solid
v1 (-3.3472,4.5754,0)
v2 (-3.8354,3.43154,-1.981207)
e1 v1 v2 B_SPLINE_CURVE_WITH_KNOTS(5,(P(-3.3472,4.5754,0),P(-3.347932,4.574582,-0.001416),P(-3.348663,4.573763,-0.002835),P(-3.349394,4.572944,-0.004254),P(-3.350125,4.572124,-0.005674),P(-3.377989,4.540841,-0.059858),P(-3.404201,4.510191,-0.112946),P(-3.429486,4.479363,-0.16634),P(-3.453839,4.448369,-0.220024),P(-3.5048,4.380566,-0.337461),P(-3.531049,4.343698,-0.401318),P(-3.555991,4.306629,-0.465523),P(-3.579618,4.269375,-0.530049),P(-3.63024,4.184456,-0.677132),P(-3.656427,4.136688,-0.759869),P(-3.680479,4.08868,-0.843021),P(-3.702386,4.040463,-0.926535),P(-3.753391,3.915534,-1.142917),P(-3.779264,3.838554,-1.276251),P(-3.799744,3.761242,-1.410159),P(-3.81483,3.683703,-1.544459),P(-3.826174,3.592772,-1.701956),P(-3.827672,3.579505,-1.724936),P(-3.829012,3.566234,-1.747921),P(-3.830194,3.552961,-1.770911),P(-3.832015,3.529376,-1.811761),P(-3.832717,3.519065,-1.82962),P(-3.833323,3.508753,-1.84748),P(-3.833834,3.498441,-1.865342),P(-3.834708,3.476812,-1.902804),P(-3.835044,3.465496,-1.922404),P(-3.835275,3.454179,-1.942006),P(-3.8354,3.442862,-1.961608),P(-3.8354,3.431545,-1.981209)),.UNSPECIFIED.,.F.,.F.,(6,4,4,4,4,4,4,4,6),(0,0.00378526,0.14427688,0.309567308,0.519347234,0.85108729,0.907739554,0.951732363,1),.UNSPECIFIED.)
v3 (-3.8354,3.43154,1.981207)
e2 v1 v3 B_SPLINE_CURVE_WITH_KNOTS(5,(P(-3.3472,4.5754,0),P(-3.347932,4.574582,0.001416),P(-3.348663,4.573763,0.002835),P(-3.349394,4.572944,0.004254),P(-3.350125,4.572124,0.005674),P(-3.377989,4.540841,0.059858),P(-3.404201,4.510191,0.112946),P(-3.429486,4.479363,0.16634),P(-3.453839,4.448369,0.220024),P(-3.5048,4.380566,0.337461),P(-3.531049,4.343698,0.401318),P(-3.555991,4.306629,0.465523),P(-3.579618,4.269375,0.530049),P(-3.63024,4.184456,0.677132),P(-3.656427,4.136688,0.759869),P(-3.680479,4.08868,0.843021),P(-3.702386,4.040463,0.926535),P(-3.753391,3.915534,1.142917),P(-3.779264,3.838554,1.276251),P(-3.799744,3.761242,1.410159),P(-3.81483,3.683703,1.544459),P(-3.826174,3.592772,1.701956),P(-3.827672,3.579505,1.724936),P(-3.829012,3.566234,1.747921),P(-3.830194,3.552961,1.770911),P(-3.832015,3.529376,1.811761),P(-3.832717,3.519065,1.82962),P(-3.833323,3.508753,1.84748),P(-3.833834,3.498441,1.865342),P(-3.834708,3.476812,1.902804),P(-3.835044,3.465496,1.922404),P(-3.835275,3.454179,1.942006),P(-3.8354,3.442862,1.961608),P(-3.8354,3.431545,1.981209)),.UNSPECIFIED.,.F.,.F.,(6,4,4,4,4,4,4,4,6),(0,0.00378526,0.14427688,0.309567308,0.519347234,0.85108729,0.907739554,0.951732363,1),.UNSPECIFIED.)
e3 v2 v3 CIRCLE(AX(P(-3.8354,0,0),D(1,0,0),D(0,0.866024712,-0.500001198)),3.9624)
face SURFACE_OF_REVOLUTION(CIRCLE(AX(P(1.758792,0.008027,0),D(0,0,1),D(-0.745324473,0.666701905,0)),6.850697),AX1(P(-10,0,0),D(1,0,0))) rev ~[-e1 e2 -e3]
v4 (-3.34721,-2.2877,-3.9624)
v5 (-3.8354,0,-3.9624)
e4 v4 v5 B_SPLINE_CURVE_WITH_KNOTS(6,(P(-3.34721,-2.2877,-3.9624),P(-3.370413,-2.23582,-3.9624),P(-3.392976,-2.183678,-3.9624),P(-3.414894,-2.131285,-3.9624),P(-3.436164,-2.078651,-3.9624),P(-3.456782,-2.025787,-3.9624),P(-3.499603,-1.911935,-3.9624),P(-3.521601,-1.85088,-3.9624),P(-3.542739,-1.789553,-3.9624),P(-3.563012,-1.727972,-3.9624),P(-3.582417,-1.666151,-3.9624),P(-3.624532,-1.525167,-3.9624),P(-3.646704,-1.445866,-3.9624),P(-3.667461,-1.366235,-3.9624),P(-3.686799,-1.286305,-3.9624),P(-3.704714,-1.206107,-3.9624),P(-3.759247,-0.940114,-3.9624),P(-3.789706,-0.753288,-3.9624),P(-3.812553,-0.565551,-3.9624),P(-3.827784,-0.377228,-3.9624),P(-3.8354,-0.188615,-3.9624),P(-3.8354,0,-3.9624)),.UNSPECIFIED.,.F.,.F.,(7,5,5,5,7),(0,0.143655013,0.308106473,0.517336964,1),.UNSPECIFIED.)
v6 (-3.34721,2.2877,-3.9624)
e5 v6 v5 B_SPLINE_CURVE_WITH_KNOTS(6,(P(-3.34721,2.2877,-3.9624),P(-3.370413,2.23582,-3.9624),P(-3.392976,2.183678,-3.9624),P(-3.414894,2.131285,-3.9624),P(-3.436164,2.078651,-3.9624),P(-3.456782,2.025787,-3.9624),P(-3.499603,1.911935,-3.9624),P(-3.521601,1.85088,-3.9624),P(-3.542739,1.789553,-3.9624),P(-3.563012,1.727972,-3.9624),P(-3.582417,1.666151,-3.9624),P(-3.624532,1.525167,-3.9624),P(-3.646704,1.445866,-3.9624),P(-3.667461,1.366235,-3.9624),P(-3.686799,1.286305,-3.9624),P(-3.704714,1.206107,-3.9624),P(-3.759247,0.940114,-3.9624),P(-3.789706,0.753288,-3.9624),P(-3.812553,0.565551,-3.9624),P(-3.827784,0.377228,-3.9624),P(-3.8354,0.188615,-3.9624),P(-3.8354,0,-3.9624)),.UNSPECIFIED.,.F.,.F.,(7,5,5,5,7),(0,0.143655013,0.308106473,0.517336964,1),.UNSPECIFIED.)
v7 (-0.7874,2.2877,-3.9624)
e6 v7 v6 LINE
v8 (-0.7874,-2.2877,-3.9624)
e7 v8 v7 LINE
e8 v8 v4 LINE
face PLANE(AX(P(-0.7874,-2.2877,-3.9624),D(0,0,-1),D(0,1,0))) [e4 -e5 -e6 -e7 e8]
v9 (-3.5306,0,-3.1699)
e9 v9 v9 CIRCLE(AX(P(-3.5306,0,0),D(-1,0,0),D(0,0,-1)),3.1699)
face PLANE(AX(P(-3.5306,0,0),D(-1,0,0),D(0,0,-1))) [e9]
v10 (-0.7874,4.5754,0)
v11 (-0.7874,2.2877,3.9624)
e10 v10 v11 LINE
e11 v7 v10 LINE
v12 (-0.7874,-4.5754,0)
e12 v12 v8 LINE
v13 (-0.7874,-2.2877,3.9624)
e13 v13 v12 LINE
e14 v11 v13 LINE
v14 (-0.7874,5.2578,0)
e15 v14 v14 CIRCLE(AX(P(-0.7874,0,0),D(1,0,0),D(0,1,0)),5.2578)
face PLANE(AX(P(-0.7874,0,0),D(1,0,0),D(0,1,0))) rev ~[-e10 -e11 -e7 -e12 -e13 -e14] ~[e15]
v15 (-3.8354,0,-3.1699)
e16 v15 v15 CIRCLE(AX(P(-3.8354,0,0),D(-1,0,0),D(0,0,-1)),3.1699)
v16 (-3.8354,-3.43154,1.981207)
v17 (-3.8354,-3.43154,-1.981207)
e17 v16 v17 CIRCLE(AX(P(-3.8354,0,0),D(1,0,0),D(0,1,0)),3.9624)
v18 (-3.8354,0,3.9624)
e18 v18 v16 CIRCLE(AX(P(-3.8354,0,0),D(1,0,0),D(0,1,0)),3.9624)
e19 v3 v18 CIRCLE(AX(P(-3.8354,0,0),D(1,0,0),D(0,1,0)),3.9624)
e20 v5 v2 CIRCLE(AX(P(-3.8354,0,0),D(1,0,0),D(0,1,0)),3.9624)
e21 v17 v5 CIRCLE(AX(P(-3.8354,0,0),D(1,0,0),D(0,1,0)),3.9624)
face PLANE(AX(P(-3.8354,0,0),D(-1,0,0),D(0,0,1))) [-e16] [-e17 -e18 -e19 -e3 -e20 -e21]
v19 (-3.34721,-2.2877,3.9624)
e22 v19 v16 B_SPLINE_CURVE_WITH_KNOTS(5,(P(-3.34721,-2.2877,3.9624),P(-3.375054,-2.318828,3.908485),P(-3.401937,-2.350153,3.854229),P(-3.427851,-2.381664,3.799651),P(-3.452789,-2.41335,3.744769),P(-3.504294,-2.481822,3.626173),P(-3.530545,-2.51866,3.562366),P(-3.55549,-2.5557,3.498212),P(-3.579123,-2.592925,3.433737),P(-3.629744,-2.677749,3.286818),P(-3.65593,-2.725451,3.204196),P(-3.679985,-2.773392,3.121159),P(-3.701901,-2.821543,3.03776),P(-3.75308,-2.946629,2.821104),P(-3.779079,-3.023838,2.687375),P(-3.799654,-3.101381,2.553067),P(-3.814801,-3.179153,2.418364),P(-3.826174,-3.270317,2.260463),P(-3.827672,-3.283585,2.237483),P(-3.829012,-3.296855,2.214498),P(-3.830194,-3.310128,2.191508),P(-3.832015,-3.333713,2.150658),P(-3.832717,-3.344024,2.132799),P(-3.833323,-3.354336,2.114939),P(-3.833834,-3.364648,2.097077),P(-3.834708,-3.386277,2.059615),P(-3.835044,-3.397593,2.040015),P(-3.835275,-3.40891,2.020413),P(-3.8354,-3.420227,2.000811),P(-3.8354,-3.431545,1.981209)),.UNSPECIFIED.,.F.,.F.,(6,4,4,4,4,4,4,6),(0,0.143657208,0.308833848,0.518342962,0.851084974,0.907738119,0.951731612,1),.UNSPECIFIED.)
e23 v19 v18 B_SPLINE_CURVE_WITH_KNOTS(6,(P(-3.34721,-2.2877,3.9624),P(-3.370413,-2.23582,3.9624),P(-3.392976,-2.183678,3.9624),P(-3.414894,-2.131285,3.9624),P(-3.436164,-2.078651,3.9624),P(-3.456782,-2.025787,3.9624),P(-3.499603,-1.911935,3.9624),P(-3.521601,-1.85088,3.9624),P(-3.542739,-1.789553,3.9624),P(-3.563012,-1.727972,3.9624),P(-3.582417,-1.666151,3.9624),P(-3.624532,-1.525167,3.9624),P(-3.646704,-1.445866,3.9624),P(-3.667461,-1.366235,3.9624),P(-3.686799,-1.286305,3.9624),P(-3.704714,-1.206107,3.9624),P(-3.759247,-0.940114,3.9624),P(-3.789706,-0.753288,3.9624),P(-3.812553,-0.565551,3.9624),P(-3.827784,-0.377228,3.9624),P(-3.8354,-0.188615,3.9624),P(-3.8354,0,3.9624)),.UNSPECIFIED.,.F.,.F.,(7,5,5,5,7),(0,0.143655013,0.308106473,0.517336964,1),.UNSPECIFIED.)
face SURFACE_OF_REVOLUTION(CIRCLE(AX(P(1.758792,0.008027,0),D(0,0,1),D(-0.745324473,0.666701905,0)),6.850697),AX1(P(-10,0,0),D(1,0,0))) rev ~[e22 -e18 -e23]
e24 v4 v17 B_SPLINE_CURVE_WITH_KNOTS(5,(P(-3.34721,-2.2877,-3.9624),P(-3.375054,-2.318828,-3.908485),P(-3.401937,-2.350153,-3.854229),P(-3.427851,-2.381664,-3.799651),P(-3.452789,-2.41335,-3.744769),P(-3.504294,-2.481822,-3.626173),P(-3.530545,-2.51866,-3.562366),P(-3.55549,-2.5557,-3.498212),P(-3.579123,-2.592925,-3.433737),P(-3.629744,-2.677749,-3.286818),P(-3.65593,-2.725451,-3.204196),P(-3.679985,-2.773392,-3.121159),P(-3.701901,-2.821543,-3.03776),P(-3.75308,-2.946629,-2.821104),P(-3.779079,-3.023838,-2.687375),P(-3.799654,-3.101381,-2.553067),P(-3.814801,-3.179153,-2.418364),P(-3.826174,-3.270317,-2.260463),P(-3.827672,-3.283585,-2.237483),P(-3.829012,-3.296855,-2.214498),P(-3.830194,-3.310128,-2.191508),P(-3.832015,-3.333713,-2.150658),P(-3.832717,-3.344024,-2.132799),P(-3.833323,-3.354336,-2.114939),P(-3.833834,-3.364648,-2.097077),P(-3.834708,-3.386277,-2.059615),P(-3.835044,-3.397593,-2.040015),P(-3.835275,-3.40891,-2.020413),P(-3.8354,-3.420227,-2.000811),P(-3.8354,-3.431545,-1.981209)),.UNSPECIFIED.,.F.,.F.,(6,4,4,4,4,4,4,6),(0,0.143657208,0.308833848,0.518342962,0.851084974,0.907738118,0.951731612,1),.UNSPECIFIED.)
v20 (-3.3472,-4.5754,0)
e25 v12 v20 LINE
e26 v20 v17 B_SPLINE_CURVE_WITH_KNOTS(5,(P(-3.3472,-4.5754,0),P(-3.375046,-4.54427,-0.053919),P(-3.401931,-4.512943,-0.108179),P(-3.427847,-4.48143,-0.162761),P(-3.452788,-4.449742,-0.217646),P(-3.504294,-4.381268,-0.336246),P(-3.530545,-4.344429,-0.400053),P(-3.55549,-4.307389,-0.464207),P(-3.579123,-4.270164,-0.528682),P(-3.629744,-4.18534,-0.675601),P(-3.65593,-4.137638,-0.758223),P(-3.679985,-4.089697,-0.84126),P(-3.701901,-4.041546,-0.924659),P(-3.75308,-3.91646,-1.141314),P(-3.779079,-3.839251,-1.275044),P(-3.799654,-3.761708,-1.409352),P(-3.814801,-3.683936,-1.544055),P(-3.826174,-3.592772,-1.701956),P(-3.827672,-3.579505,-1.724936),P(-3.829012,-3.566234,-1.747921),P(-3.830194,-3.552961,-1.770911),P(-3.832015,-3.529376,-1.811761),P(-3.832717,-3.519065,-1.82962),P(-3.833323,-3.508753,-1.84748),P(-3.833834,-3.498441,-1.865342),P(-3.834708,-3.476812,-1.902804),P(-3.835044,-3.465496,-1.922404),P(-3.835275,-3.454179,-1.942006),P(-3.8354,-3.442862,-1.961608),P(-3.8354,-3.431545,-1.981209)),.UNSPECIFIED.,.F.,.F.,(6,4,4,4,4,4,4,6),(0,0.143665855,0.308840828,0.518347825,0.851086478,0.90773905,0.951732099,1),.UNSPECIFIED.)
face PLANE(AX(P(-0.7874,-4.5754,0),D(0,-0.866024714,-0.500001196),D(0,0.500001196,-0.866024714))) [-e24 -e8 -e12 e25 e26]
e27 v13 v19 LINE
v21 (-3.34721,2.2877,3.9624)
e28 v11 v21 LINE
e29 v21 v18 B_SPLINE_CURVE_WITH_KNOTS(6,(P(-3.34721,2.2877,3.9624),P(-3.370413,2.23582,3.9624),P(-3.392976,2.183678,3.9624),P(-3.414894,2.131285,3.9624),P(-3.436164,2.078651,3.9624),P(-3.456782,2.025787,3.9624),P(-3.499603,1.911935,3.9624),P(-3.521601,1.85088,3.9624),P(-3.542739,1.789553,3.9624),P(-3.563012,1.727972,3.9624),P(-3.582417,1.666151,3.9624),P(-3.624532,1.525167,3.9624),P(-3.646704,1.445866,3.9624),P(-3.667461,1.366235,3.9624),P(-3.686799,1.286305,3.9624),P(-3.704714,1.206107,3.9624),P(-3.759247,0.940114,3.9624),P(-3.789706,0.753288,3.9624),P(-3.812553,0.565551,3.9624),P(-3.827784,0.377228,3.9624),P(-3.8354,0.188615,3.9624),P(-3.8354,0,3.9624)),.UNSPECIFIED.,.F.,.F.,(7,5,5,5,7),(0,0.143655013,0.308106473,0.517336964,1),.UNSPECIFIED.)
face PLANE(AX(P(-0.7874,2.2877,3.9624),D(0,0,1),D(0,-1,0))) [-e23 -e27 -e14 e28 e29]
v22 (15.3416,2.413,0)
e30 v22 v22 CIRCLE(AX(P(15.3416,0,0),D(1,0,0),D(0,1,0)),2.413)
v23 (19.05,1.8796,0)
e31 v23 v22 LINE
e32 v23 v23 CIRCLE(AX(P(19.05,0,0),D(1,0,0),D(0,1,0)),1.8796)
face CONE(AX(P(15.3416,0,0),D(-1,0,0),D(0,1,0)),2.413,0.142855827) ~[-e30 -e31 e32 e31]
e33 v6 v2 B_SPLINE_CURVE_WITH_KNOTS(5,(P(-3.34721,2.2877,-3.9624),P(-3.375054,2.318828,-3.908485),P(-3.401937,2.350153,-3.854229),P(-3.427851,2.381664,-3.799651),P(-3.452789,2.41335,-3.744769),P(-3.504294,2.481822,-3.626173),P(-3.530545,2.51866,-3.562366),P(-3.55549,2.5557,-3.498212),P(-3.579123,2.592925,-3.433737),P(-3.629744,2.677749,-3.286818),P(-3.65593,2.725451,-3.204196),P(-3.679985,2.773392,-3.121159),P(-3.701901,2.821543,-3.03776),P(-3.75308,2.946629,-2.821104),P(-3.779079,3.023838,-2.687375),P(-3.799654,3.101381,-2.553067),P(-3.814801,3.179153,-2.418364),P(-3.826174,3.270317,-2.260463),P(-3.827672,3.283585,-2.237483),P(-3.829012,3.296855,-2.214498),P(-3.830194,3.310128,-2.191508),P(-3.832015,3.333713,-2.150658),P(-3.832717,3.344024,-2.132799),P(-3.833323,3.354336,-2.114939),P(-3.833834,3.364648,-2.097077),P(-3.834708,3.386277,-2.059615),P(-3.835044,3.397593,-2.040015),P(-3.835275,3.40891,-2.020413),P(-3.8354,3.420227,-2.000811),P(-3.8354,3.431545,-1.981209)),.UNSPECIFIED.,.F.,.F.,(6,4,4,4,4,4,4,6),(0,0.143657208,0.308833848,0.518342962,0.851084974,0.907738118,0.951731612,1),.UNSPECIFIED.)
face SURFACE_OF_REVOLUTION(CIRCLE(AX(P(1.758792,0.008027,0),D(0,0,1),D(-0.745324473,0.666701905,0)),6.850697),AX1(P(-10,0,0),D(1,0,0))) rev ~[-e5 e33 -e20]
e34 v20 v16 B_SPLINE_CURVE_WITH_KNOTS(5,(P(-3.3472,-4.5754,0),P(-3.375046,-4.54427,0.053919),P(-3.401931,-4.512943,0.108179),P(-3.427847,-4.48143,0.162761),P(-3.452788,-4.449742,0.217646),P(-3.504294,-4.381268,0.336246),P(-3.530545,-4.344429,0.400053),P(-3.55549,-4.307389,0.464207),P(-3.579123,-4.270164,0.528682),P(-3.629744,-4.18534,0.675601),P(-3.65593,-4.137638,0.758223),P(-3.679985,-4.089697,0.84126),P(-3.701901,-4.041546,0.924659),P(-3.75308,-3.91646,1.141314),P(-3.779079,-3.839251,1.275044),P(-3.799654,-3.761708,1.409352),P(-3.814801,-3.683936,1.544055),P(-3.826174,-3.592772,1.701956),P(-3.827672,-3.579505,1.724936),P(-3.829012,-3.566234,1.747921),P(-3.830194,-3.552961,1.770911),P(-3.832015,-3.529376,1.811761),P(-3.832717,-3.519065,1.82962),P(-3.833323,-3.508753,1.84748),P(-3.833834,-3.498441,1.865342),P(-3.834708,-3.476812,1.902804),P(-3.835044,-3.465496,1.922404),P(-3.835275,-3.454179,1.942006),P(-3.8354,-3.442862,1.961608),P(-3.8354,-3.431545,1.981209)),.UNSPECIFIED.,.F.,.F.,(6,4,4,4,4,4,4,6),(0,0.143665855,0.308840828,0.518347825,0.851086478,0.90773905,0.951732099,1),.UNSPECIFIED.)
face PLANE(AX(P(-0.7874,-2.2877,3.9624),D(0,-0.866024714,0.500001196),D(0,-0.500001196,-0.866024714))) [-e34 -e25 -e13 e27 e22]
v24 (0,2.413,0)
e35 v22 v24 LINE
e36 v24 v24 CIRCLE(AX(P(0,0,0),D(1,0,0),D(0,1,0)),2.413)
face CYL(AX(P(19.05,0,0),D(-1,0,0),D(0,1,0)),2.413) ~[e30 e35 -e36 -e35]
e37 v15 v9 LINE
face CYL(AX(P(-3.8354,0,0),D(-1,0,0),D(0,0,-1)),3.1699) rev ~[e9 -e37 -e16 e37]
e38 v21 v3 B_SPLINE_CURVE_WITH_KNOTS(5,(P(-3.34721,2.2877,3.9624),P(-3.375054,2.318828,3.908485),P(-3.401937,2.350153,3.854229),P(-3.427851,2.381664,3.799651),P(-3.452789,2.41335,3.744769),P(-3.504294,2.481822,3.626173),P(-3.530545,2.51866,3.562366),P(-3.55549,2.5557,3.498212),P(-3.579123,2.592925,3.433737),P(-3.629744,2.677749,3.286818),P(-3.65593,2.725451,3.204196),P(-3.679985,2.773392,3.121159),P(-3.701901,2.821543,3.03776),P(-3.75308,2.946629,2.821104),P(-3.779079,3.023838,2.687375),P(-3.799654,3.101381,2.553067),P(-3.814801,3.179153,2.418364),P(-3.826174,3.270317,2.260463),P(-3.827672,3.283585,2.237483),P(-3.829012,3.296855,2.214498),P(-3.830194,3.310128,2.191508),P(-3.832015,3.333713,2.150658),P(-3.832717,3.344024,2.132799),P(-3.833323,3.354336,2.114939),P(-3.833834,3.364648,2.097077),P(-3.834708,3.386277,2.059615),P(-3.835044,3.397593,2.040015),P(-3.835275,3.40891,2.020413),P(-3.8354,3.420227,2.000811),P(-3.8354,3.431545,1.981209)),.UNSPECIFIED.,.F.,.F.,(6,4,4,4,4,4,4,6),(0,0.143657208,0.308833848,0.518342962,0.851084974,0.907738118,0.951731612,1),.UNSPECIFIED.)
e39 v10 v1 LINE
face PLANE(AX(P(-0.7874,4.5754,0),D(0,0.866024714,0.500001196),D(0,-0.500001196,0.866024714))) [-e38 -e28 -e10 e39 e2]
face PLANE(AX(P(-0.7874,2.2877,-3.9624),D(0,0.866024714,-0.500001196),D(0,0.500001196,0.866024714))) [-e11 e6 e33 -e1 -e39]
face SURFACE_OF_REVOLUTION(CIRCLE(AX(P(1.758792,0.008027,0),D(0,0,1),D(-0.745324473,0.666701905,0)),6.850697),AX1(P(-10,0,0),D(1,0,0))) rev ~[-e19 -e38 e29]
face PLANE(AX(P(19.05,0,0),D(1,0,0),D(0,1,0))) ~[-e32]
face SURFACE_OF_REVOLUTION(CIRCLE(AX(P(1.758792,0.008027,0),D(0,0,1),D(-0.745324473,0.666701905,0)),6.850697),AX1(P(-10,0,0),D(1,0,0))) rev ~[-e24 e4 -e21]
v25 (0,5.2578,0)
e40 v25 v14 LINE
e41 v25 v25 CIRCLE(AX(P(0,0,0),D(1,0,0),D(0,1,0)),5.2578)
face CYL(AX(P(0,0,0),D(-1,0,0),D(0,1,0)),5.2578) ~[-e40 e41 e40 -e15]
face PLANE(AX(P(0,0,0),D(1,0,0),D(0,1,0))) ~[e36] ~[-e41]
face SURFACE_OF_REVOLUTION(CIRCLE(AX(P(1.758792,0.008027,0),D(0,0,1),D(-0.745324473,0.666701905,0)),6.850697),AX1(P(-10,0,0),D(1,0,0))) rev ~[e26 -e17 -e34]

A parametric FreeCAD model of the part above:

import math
import FreeCAD as App
import Part
import Sketcher
Q = App.Units.Quantity


def edges_at(feature, points):
    """Names of the edges that pass closest to the given points."""
    edges = feature.Shape.Edges
    near = lambda p: min(range(len(edges)), key=lambda i: edges[i].distToShape(Part.Vertex(*p))[0])
    return sorted({f"Edge{near(p) + 1}" for p in points})


def add_polygon(sketch, points):
    """Adds a closed chain of lines whose ends are joined by coincident constraints."""
    first, n = sketch.GeometryCount, len(points)
    for a, b in zip(points, points[1:] + points[:1]):
        sketch.addGeometry(Part.LineSegment(App.Vector(*a, 0), App.Vector(*b, 0)), False)
    for i in range(n):
        sketch.addConstraint(Sketcher.Constraint("Coincident", first + i, 2, first + (i + 1) % n, 1))

doc = App.newDocument("Part")
params = doc.addObject("Spreadsheet::Sheet", "Params")
for row, (alias, value) in enumerate([
    ("sketch1_width", "0.75 in"),
    ("sketch1_width2", "0.031 in"),
    ("sketch1_height", "0.207 in"),
    ("sketch1_height2", "0.095 in"),
    ("revolution_angle", "360 deg"),
    ("pad1_length", "0.12 in"),
    ("pocket1_length", "0.012 in"),
    ("groove_angle", "360 deg"),
    ("chamfer_size", "0.021 in"),
    ("chamfer_size2", "0.146 in"),
], start=1):
    params.set(f"A{row}", alias)
    params.set(f"B{row}", "=" + value)
    params.setAlias(f"B{row}", alias)

body = doc.addObject("PartDesign::Body", "Body")

# Sketch on XY plane
sketch1 = body.newObject("Sketcher::SketchObject", "Sketch")
sketch1.AttachmentSupport = (doc.getObject("XY_Plane"), [""])
sketch1.MapMode = "FlatFace"
add_polygon(sketch1, [(0, 5.3), (-0.8, 5.3), (-0.8, 0), (19.1, 0), (19.1, 2.4), (0, 2.4)])  # lines 0-5
sketch1.addConstraint([
    Sketcher.Constraint("Horizontal", 0),
    Sketcher.Constraint("Vertical", 1),
    Sketcher.Constraint("Horizontal", 2),
    Sketcher.Constraint("Vertical", 3),
    Sketcher.Constraint("Horizontal", 4),
    Sketcher.Constraint("Vertical", 5),
    Sketcher.Constraint("PointOnObject", 1, 2, -1),
    Sketcher.Constraint("PointOnObject", 4, 2, -2),
    Sketcher.Constraint("DistanceX", 4, 2, 4, 1, Q("0.75 in")),
    Sketcher.Constraint("DistanceX", 0, 2, 0, 1, Q("0.031 in")),
    Sketcher.Constraint("DistanceY", 1, 2, 1, 1, Q("0.207 in")),
    Sketcher.Constraint("DistanceY", 3, 1, 3, 2, Q("0.095 in")),
])
sketch1.setExpression("Constraints[14]", "Params.sketch1_width")
sketch1.setExpression("Constraints[15]", "Params.sketch1_width2")
sketch1.setExpression("Constraints[16]", "Params.sketch1_height")
sketch1.setExpression("Constraints[17]", "Params.sketch1_height2")
revolution = body.newObject("PartDesign::Revolution", "Revolution")
revolution.Profile = sketch1
revolution.ReferenceAxis = (sketch1, ["H_Axis"])
revolution.setExpression("Angle", "Params.revolution_angle")

# Sketch on YZ plane
sketch2 = body.newObject("Sketcher::SketchObject", "Sketch001")
sketch2.AttachmentSupport = (doc.getObject("YZ_Plane"), [""])
sketch2.MapMode = "FlatFace"
sketch2.AttachmentOffset = App.Placement(App.Vector(0, 0, -0.031 * 25.4), App.Rotation())
add_polygon(sketch2, [(2.3, 4), (4.6, 0), (2.3, -4), (-2.3, -4), (-4.6, 0), (-2.3, 4)])  # lines 0-5
sketch2.addConstraint([
    Sketcher.Constraint("Horizontal", 2),
    Sketcher.Constraint("Horizontal", 5),
    Sketcher.Constraint("Symmetric", 0, 2, 3, 2, -1, 1),
    Sketcher.Constraint("Symmetric", 1, 2, 4, 2, -1, 1),
    Sketcher.Constraint("PointOnObject", 0, 2, -1),
    Sketcher.Constraint("Parallel", 0, 3),
    Sketcher.Constraint("Vertical", 2, 2, 4, 2),
    Sketcher.Constraint("Angle", 0, Q("-60 deg")),
    Sketcher.Constraint("DistanceY", 2, 2, 4, 2, Q("0.312 in")),
    Sketcher.Constraint("DistanceX", 2, 2, 2, 1, 4.5754),
])
pad1 = body.newObject("PartDesign::Pad", "Pad")
pad1.Profile = sketch2
pad1.setExpression("Length", "Params.pad1_length")
pad1.Reversed = True

# Sketch on YZ plane
sketch3 = body.newObject("Sketcher::SketchObject", "Sketch002")
sketch3.AttachmentSupport = (doc.getObject("YZ_Plane"), [""])
sketch3.MapMode = "FlatFace"
sketch3.AttachmentOffset = App.Placement(App.Vector(0, 0, -0.151 * 25.4), App.Rotation())
sketch3.addGeometry(Part.Circle(App.Vector(0, 0, 0), App.Vector(0, 0, 1), 3.2), False)
sketch3.addConstraint([
    Sketcher.Constraint("Coincident", 0, 3, -1, 1),
    Sketcher.Constraint("Diameter", 0, Q("0.2496 in")),
])
pocket1 = body.newObject("PartDesign::Pocket", "Pocket")
pocket1.Profile = sketch3
pocket1.setExpression("Length", "Params.pocket1_length")
pocket1.Reversed = True

# Sketch on XY plane
sketch4 = body.newObject("Sketcher::SketchObject", "Sketch003")
sketch4.AttachmentSupport = (doc.getObject("XY_Plane"), [""])
sketch4.MapMode = "FlatFace"
sketch4.addGeometry([
    Part.LineSegment(App.Vector(-3.84, 4.58, 0), App.Vector(-3.84, 3.96, 0)),
    Part.ArcOfCircle(Part.Circle(App.Vector(1.76, 0.01, 0), App.Vector(0, 0, 1), 6.85), math.radians(138.19), math.radians(144.74)),
    Part.LineSegment(App.Vector(-3.35, 4.58, 0), App.Vector(-3.84, 4.58, 0)),
], False)
sketch4.addConstraint([
    Sketcher.Constraint("Coincident", 0, 2, 1, 2),
    Sketcher.Constraint("Coincident", 1, 1, 2, 1),
    Sketcher.Constraint("Coincident", 2, 2, 0, 1),
    Sketcher.Constraint("Vertical", 0),
    Sketcher.Constraint("Horizontal", 2),
    Sketcher.Constraint("Radius", 1, 6.8507),
    Sketcher.Constraint("DistanceX", 0, 2, -1, 1, Q("0.151 in")),
    Sketcher.Constraint("DistanceY", -1, 1, 0, 2, Q("0.156 in")),
    Sketcher.Constraint("DistanceX", 2, 2, 2, 1, 0.4882),
    Sketcher.Constraint("DistanceY", 0, 2, 0, 1, 0.613),
])
groove = body.newObject("PartDesign::Groove", "Groove")
groove.Profile = sketch4
groove.ReferenceAxis = (sketch4, ["H_Axis"])
groove.setExpression("Angle", "Params.groove_angle")
doc.recompute()

chamfer = body.newObject("PartDesign::Chamfer", "Chamfer")
chamfer.Base = (groove, edges_at(groove, [(19.05, -2.413, 0)]))
chamfer.ChamferType = "Two distances"
chamfer.setExpression("Size", "Params.chamfer_size")
chamfer.setExpression("Size2", "Params.chamfer_size2")
chamfer.FlipDirection = True

doc.recompute()
